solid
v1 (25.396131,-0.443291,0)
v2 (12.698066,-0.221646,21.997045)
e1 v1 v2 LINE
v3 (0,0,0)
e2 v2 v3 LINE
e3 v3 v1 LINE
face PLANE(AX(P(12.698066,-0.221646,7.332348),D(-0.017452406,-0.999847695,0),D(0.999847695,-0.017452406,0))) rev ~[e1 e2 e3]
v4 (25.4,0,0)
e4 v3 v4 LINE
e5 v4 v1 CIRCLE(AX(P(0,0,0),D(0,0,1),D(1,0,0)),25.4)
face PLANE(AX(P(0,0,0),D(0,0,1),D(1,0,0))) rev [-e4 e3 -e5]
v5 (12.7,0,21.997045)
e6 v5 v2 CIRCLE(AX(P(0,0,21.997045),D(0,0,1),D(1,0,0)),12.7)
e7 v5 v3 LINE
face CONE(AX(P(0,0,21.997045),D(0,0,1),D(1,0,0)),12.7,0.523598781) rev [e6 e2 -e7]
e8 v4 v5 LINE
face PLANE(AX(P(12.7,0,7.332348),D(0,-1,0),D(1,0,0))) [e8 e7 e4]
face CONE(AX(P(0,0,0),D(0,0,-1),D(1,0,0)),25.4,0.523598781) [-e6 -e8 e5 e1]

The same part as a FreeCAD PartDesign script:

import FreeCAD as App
import Part
import Sketcher
from FreeCAD import Vector
Q = App.Units.Quantity

doc = App.newDocument("Part")
body = doc.addObject("PartDesign::Body", "Body")

sketch1 = doc.addObject("Sketcher::SketchObject", "Sketch")
body.addObject(sketch1)
sketch1.AttachmentSupport = (doc.XZ_Plane, [""])
sketch1.MapMode = "FlatFace"
sketch1.addGeometry([
    Part.LineSegment(Vector(13, 22, 0), Vector(0, 0, 0)),
    Part.LineSegment(Vector(0, 0, 0), Vector(25, 0, 0)),
    Part.LineSegment(Vector(25, 0, 0), Vector(13, 22, 0)),
], False)
sketch1.addConstraint([
    Sketcher.Constraint("Coincident", 0, 2, 1, 1),
    Sketcher.Constraint("Coincident", 1, 2, 2, 1),
    Sketcher.Constraint("Coincident", 2, 2, 0, 1),
    Sketcher.Constraint("Horizontal", 1),
    Sketcher.Constraint("Coincident", 0, 2, -1, 1),
    Sketcher.Constraint("Equal", 0, 2),
    Sketcher.Constraint("DistanceX", 1, 1, 1, 2, Q("1 in")),
    Sketcher.Constraint("Distance", 0, Q("1 in")),
])
revolution = doc.addObject("PartDesign::Revolution", "Revolution")
body.addObject(revolution)
revolution.Profile = sketch1
revolution.ReferenceAxis = (sketch1, ["V_Axis"])
revolution.Angle = 359

doc.recompute()
